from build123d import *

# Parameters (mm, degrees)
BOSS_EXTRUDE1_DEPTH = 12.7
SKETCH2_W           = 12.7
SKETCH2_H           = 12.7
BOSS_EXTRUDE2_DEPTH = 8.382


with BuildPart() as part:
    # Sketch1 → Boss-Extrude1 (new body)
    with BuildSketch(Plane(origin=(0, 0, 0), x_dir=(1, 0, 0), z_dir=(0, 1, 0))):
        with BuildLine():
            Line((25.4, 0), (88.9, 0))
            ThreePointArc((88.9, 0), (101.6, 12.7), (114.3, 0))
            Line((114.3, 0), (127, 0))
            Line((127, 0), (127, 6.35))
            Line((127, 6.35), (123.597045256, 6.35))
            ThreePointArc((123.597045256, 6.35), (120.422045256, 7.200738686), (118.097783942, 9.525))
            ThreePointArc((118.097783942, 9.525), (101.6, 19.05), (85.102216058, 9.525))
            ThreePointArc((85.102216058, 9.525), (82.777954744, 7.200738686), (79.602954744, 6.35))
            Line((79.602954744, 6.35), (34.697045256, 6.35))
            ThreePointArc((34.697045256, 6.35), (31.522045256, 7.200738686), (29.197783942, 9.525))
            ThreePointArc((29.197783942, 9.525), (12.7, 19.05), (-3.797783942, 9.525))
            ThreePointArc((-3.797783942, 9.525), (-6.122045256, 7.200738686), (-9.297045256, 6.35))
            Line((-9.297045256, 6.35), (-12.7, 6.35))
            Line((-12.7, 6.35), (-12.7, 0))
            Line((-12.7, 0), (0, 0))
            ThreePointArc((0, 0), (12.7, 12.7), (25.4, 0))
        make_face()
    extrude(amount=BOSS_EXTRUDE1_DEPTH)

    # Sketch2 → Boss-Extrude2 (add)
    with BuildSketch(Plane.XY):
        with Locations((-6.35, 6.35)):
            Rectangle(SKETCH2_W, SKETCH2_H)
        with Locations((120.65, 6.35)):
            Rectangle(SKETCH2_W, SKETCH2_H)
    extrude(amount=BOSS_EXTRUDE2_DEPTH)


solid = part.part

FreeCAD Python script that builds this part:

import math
import FreeCAD as App
import Part
import Sketcher

V = App.Vector
Q = App.Units.Quantity


def add_polygon(sketch, points):
    """Adds a closed chain of lines whose ends are joined by coincident constraints."""
    first, n = sketch.GeometryCount, len(points)
    for a, b in zip(points, points[1:] + points[:1]):
        sketch.addGeometry(Part.LineSegment(App.Vector(*a, 0), App.Vector(*b, 0)), False)
    for i in range(n):
        sketch.addConstraint(Sketcher.Constraint("Coincident", first + i, 2, first + (i + 1) % n, 1))

doc = App.newDocument("Part")
params = doc.addObject("Spreadsheet::Sheet", "Params")
for row, (alias, value) in enumerate([
    ("sketch1_radius", "0.5 in"),
    ("sketch1_radius2", "0.25 in"),
    ("sketch1_radius3", "0.75 in"),
    ("sketch1_width", "2.5 in"),
    ("sketch1_width2", "0.5 in"),
    ("pad1_length", "0.5 in"),
    ("sketch2_width", "0.5 in"),
    ("pad2_length", "0.33 in"),
], start=1):
    params.set(f"A{row}", alias)
    params.set(f"B{row}", "=" + value)
    params.setAlias(f"B{row}", alias)

body = doc.addObject("PartDesign::Body", "Body")

# Sketch on XZ plane
sketch1 = body.newObject("Sketcher::SketchObject", "Sketch")
sketch1.AttachmentSupport = (doc.getObject("XZ_Plane"), [""])
sketch1.MapMode = "FlatFace"
sketch1.addGeometry(Part.LineSegment(V(25.4, 0, 0), V(88.9, 0, 0)), False)
sketch1.addGeometry(Part.ArcOfCircle(Part.Circle(V(101.6, 0, 0), V(0, 0, 1), 12.7), math.radians(180), math.radians(360)), False)
sketch1.addGeometry(Part.LineSegment(V(114.3, 0, 0), V(127, 0, 0)), False)
sketch1.addGeometry(Part.LineSegment(V(127, 0, 0), V(127, -6.3, 0)), False)
sketch1.addGeometry(Part.LineSegment(V(127, -6.3, 0), V(123.6, -6.3, 0)), False)
sketch1.addGeometry(Part.ArcOfCircle(Part.Circle(V(123.6, -12.7, 0), V(0, 0, 1), 6.3), math.radians(90), math.radians(150)), False)
sketch1.addGeometry(Part.ArcOfCircle(Part.Circle(V(101.6, 0, 0), V(0, 0, 1), 19.1), math.radians(-150), math.radians(-30)), False)
sketch1.addGeometry(Part.ArcOfCircle(Part.Circle(V(79.6, -12.7, 0), V(0, 0, 1), 6.3), math.radians(30), math.radians(90)), False)
sketch1.addGeometry(Part.LineSegment(V(79.6, -6.3, 0), V(34.7, -6.3, 0)), False)
sketch1.addGeometry(Part.ArcOfCircle(Part.Circle(V(34.7, -12.7, 0), V(0, 0, 1), 6.3), math.radians(90), math.radians(150)), False)
sketch1.addGeometry(Part.ArcOfCircle(Part.Circle(V(12.7, 0, 0), V(0, 0, 1), 19.1), math.radians(-150), math.radians(-30)), False)
sketch1.addGeometry(Part.ArcOfCircle(Part.Circle(V(-9.3, -12.7, 0), V(0, 0, 1), 6.3), math.radians(30), math.radians(90)), False)
sketch1.addGeometry(Part.LineSegment(V(-9.3, -6.3, 0), V(-12.7, -6.3, 0)), False)
sketch1.addGeometry(Part.LineSegment(V(-12.7, -6.3, 0), V(-12.7, 0, 0)), False)
sketch1.addGeometry(Part.LineSegment(V(-12.7, 0, 0), V(0, 0, 0)), False)
sketch1.addGeometry(Part.ArcOfCircle(Part.Circle(V(12.7, 0, 0), V(0, 0, 1), 12.7), math.radians(180), math.radians(360)), False)
sketch1.addConstraint(Sketcher.Constraint("Coincident", 0, 2, 1, 1))
sketch1.addConstraint(Sketcher.Constraint("Coincident", 1, 2, 2, 1))
sketch1.addConstraint(Sketcher.Constraint("Coincident", 2, 2, 3, 1))
sketch1.addConstraint(Sketcher.Constraint("Coincident", 3, 2, 4, 1))
sketch1.addConstraint(Sketcher.Constraint("Tangent", 4, 2, 5, 1))
sketch1.addConstraint(Sketcher.Constraint("Tangent", 5, 2, 6, 2))
sketch1.addConstraint(Sketcher.Constraint("Tangent", 6, 1, 7, 1))
sketch1.addConstraint(Sketcher.Constraint("Tangent", 7, 2, 8, 1))
sketch1.addConstraint(Sketcher.Constraint("Tangent", 8, 2, 9, 1))
sketch1.addConstraint(Sketcher.Constraint("Tangent", 9, 2, 10, 2))
sketch1.addConstraint(Sketcher.Constraint("Tangent", 10, 1, 11, 1))
sketch1.addConstraint(Sketcher.Constraint("Tangent", 11, 2, 12, 1))
sketch1.addConstraint(Sketcher.Constraint("Coincident", 12, 2, 13, 1))
sketch1.addConstraint(Sketcher.Constraint("Coincident", 13, 2, 14, 1))
sketch1.addConstraint(Sketcher.Constraint("Coincident", 14, 2, 15, 1))
sketch1.addConstraint(Sketcher.Constraint("Coincident", 15, 2, 0, 1))
sketch1.addConstraint(Sketcher.Constraint("Horizontal", 0))
sketch1.addConstraint(Sketcher.Constraint("Horizontal", 2))
sketch1.addConstraint(Sketcher.Constraint("Vertical", 3))
sketch1.addConstraint(Sketcher.Constraint("Horizontal", 4))
sketch1.addConstraint(Sketcher.Constraint("Horizontal", 8))
sketch1.addConstraint(Sketcher.Constraint("Horizontal", 12))
sketch1.addConstraint(Sketcher.Constraint("Vertical", 13))
sketch1.addConstraint(Sketcher.Constraint("Horizontal", 14))
sketch1.addConstraint(Sketcher.Constraint("Coincident", 14, 2, -1, 1))
sketch1.addConstraint(Sketcher.Constraint("Coincident", 6, 3, 1, 3))
sketch1.addConstraint(Sketcher.Constraint("Coincident", 15, 3, 10, 3))
sketch1.addConstraint(Sketcher.Constraint("Equal", 5, 7))
sketch1.addConstraint(Sketcher.Constraint("Equal", 7, 9))
sketch1.addConstraint(Sketcher.Constraint("Equal", 6, 10))
sketch1.addConstraint(Sketcher.Constraint("Equal", 9, 11))
sketch1.addConstraint(Sketcher.Constraint("Equal", 1, 15))
sketch1.addConstraint(Sketcher.Constraint("PointOnObject", 1, 3, -1))
sketch1.addConstraint(Sketcher.Constraint("PointOnObject", 10, 3, -1))
sketch1.addConstraint(Sketcher.Constraint("PointOnObject", 0, 2, -1))
sketch1.addConstraint(Sketcher.Constraint("PointOnObject", 1, 2, -1))
sketch1.addConstraint(Sketcher.Constraint("Horizontal", 5, 3, 7, 3))
sketch1.addConstraint(Sketcher.Constraint("Horizontal", 9, 3, 11, 3))
sketch1.addConstraint(Sketcher.Constraint("Equal", 4, 12))
sketch1.addConstraint(Sketcher.Constraint("Radius", 1, Q("0.5 in")))
sketch1.addConstraint(Sketcher.Constraint("Radius", 5, Q("0.25 in")))
sketch1.addConstraint(Sketcher.Constraint("Radius", 6, Q("0.75 in")))
sketch1.addConstraint(Sketcher.Constraint("DistanceX", 0, 1, 0, 2, Q("2.5 in")))
sketch1.addConstraint(Sketcher.Constraint("DistanceX", 2, 1, 2, 2, Q("0.5 in")))
sketch1.addConstraint(Sketcher.Constraint("DistanceY", 3, 2, 3, 1, Q("0.25 in")))
sketch1.setExpression("Constraints[39]", "Params.sketch1_radius")
sketch1.setExpression("Constraints[40]", "Params.sketch1_radius2")
sketch1.setExpression("Constraints[41]", "Params.sketch1_radius3")
sketch1.setExpression("Constraints[42]", "Params.sketch1_width")
sketch1.setExpression("Constraints[43]", "Params.sketch1_width2")
pad1 = body.newObject("PartDesign::Pad", "Pad")
pad1.Profile = sketch1
pad1.setExpression("Length", "Params.pad1_length")
pad1.Reversed = True

# Sketch on XY plane
sketch2 = body.newObject("Sketcher::SketchObject", "Sketch001")
sketch2.AttachmentSupport = (doc.getObject("XY_Plane"), [""])
sketch2.MapMode = "FlatFace"
add_polygon(sketch2, [(-13, 13), (-13, 0), (0, 0), (0, 13)])  # lines 0-3
add_polygon(sketch2, [(114, 13), (114, 0), (127, 0), (127, 13)])  # lines 4-7
sketch2.addConstraint(Sketcher.Constraint("Vertical", 0))
sketch2.addConstraint(Sketcher.Constraint("Horizontal", 1))
sketch2.addConstraint(Sketcher.Constraint("Vertical", 2))
sketch2.addConstraint(Sketcher.Constraint("Horizontal", 3))
sketch2.addConstraint(Sketcher.Constraint("Vertical", 4))
sketch2.addConstraint(Sketcher.Constraint("Horizontal", 5))
sketch2.addConstraint(Sketcher.Constraint("Vertical", 6))
sketch2.addConstraint(Sketcher.Constraint("Horizontal", 7))
sketch2.addConstraint(Sketcher.Constraint("Coincident", 1, 2, -1, 1))
sketch2.addConstraint(Sketcher.Constraint("PointOnObject", 4, 2, -1))
sketch2.addConstraint(Sketcher.Constraint("Horizontal", 3, 2, 6, 2))
sketch2.addConstraint(Sketcher.Constraint("Equal", 3, 5))
sketch2.addConstraint(Sketcher.Constraint("Equal", 7, 0))
sketch2.addConstraint(Sketcher.Constraint("DistanceX", 1, 1, 1, 2, Q("0.5 in")))
sketch2.addConstraint(Sketcher.Constraint("DistanceX", -1, 1, 5, 2, Q("5 in")))
sketch2.setExpression("Constraints[21]", "Params.sketch2_width")
pad2 = body.newObject("PartDesign::Pad", "Pad001")
pad2.Profile = sketch2
pad2.setExpression("Length", "Params.pad2_length")

doc.recompute()
